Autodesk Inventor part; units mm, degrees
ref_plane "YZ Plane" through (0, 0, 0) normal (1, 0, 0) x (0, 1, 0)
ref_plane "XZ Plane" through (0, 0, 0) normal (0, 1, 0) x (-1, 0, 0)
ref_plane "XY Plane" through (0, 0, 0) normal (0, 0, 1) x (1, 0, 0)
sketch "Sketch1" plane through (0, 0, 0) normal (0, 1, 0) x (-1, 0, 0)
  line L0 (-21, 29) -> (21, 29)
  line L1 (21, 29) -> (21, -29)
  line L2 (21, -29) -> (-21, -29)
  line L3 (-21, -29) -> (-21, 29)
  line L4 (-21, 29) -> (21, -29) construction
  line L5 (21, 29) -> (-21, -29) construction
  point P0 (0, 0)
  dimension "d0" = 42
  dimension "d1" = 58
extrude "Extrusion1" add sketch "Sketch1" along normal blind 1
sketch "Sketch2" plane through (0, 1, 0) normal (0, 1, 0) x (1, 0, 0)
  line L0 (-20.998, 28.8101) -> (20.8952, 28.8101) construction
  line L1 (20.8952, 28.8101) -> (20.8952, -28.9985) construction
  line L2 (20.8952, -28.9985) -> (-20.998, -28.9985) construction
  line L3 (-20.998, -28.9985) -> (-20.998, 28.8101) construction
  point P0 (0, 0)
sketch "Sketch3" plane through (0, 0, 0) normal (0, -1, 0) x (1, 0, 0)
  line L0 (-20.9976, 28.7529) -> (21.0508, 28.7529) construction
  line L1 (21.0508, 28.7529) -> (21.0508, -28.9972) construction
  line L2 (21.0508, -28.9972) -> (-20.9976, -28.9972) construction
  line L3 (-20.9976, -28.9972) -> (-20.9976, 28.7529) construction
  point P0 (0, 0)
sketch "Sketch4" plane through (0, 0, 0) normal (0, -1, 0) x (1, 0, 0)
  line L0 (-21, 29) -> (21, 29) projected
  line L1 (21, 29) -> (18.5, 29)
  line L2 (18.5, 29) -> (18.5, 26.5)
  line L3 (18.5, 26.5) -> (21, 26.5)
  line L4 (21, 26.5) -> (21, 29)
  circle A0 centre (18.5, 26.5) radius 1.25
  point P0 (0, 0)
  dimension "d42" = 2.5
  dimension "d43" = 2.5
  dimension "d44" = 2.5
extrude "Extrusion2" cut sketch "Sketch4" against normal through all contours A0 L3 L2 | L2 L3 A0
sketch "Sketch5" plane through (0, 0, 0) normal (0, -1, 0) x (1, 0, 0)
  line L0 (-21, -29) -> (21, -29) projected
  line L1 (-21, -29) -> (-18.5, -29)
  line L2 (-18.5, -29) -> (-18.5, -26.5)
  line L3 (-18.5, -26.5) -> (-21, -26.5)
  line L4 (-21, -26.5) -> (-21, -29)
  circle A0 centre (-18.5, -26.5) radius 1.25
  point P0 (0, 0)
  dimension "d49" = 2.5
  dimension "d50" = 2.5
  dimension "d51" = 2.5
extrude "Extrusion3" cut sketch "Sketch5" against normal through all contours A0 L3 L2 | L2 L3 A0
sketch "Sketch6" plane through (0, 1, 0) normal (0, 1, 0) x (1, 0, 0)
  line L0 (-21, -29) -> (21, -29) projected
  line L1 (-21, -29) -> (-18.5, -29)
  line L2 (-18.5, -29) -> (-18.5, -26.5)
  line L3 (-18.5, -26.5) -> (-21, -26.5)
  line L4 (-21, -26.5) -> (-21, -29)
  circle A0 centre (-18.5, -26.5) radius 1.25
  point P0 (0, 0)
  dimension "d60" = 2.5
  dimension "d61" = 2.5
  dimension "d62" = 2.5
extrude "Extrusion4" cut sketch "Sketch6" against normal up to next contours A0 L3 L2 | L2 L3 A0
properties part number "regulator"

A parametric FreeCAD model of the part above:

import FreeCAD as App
import Part
import Sketcher

V = App.Vector

doc = App.newDocument("Part")
body = doc.addObject("PartDesign::Body", "Body")

# Sketch on XZ plane
sketch1 = body.newObject("Sketcher::SketchObject", "Sketch")
sketch1.AttachmentSupport = (doc.getObject("XZ_Plane"), [""])
sketch1.MapMode = "FlatFace"
sketch1.addGeometry(Part.LineSegment(V(-21, 29, 0), V(21, 29, 0)), False)
sketch1.addGeometry(Part.LineSegment(V(21, 29, 0), V(21, -29, 0)), False)
sketch1.addGeometry(Part.LineSegment(V(21, -29, 0), V(-21, -29, 0)), False)
sketch1.addGeometry(Part.LineSegment(V(-21, -29, 0), V(-21, 29, 0)), False)
sketch1.addConstraint(Sketcher.Constraint("Coincident", 0, 2, 1, 1))
sketch1.addConstraint(Sketcher.Constraint("Coincident", 1, 2, 2, 1))
sketch1.addConstraint(Sketcher.Constraint("Coincident", 2, 2, 3, 1))
sketch1.addConstraint(Sketcher.Constraint("Coincident", 3, 2, 0, 1))
sketch1.addConstraint(Sketcher.Constraint("Horizontal", 0))
sketch1.addConstraint(Sketcher.Constraint("Vertical", 1))
sketch1.addConstraint(Sketcher.Constraint("Horizontal", 2))
sketch1.addConstraint(Sketcher.Constraint("Vertical", 3))
sketch1.addConstraint(Sketcher.Constraint("Symmetric", 0, 2, 2, 2, -1, 1))
sketch1.addConstraint(Sketcher.Constraint("DistanceX", 0, 1, 0, 2, 42.0))
sketch1.addConstraint(Sketcher.Constraint("DistanceY", 1, 2, 1, 1, 58.0))
pad1 = body.newObject("PartDesign::Pad", "Pad")
pad1.Profile = sketch1
pad1.Length = 1
pad1.Reversed = True

# Sketch on XZ plane
sketch2 = body.newObject("Sketcher::SketchObject", "Sketch001")
sketch2.AttachmentSupport = (doc.getObject("XZ_Plane"), [""])
sketch2.MapMode = "FlatFace"
sketch2.addGeometry(Part.Circle(V(18.5, 26.5, 0), V(0, 0, 1), 1.2), False)
sketch2.addConstraint(Sketcher.Constraint("Diameter", 0, 2.5))
sketch2.addConstraint(Sketcher.Constraint("DistanceX", -1, 1, 0, 3, 18.5))
sketch2.addConstraint(Sketcher.Constraint("DistanceY", -1, 1, 0, 3, 26.5))
pocket1 = body.newObject("PartDesign::Pocket", "Pocket")
pocket1.Profile = sketch2
pocket1.Type = "ThroughAll"

# Sketch on XZ plane
sketch3 = body.newObject("Sketcher::SketchObject", "Sketch002")
sketch3.AttachmentSupport = (doc.getObject("XZ_Plane"), [""])
sketch3.MapMode = "FlatFace"
sketch3.addGeometry(Part.Circle(V(-18.5, -26.5, 0), V(0, 0, 1), 1.2), False)
sketch3.addConstraint(Sketcher.Constraint("Diameter", 0, 2.5))
sketch3.addConstraint(Sketcher.Constraint("DistanceX", 0, 3, -1, 1, 18.5))
sketch3.addConstraint(Sketcher.Constraint("DistanceY", 0, 3, -1, 1, 26.5))
pocket2 = body.newObject("PartDesign::Pocket", "Pocket001")
pocket2.Profile = sketch3
pocket2.Type = "ThroughAll"

# Sketch on XZ plane
sketch4 = body.newObject("Sketcher::SketchObject", "Sketch003")
sketch4.AttachmentSupport = (doc.getObject("XZ_Plane"), [""])
sketch4.MapMode = "FlatFace"
sketch4.AttachmentOffset = App.Placement(V(0, 0, -1), App.Rotation())
sketch4.addGeometry(Part.Circle(V(-18.5, 26.5, 0), V(0, 0, 1), 1.2), False)
sketch4.addConstraint(Sketcher.Constraint("Diameter", 0, 2.5))
sketch4.addConstraint(Sketcher.Constraint("DistanceX", 0, 3, -1, 1, 18.5))
sketch4.addConstraint(Sketcher.Constraint("DistanceY", -1, 1, 0, 3, 26.5))
pocket3 = body.newObject("PartDesign::Pocket", "Pocket002")
pocket3.Profile = sketch4
pocket3.Type = "UpToFirst"
pocket3.Reversed = True

doc.recompute()
